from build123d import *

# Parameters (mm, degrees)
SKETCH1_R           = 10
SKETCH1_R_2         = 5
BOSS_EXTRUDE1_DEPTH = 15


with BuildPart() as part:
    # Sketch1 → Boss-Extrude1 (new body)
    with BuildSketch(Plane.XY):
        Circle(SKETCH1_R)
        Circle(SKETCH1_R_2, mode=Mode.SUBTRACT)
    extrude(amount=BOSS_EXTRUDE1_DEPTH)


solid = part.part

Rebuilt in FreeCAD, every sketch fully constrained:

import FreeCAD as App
import Part
import Sketcher

V = App.Vector

doc = App.newDocument("Part")
body = doc.addObject("PartDesign::Body", "Body")

sketch1 = body.newObject("Sketcher::SketchObject", "Sketch")
sketch1.AttachmentSupport = (doc.getObject("XY_Plane"), [""])
sketch1.MapMode = "FlatFace"
sketch1.addGeometry([
    Part.Circle(V(0, 0, 0), V(0, 0, 1), 10),
    Part.Circle(V(0, 0, 0), V(0, 0, 1), 5),
], False)
sketch1.addConstraint([
    Sketcher.Constraint("Coincident", 0, 3, -1, 1),
    Sketcher.Constraint("Coincident", 1, 3, -1, 1),
    Sketcher.Constraint("Diameter", 0, 20.0),
    Sketcher.Constraint("Diameter", 1, 10.0),
])
pad1 = body.newObject("PartDesign::Pad", "Pad")
pad1.Profile = sketch1
pad1.Length = 15

doc.recompute()
